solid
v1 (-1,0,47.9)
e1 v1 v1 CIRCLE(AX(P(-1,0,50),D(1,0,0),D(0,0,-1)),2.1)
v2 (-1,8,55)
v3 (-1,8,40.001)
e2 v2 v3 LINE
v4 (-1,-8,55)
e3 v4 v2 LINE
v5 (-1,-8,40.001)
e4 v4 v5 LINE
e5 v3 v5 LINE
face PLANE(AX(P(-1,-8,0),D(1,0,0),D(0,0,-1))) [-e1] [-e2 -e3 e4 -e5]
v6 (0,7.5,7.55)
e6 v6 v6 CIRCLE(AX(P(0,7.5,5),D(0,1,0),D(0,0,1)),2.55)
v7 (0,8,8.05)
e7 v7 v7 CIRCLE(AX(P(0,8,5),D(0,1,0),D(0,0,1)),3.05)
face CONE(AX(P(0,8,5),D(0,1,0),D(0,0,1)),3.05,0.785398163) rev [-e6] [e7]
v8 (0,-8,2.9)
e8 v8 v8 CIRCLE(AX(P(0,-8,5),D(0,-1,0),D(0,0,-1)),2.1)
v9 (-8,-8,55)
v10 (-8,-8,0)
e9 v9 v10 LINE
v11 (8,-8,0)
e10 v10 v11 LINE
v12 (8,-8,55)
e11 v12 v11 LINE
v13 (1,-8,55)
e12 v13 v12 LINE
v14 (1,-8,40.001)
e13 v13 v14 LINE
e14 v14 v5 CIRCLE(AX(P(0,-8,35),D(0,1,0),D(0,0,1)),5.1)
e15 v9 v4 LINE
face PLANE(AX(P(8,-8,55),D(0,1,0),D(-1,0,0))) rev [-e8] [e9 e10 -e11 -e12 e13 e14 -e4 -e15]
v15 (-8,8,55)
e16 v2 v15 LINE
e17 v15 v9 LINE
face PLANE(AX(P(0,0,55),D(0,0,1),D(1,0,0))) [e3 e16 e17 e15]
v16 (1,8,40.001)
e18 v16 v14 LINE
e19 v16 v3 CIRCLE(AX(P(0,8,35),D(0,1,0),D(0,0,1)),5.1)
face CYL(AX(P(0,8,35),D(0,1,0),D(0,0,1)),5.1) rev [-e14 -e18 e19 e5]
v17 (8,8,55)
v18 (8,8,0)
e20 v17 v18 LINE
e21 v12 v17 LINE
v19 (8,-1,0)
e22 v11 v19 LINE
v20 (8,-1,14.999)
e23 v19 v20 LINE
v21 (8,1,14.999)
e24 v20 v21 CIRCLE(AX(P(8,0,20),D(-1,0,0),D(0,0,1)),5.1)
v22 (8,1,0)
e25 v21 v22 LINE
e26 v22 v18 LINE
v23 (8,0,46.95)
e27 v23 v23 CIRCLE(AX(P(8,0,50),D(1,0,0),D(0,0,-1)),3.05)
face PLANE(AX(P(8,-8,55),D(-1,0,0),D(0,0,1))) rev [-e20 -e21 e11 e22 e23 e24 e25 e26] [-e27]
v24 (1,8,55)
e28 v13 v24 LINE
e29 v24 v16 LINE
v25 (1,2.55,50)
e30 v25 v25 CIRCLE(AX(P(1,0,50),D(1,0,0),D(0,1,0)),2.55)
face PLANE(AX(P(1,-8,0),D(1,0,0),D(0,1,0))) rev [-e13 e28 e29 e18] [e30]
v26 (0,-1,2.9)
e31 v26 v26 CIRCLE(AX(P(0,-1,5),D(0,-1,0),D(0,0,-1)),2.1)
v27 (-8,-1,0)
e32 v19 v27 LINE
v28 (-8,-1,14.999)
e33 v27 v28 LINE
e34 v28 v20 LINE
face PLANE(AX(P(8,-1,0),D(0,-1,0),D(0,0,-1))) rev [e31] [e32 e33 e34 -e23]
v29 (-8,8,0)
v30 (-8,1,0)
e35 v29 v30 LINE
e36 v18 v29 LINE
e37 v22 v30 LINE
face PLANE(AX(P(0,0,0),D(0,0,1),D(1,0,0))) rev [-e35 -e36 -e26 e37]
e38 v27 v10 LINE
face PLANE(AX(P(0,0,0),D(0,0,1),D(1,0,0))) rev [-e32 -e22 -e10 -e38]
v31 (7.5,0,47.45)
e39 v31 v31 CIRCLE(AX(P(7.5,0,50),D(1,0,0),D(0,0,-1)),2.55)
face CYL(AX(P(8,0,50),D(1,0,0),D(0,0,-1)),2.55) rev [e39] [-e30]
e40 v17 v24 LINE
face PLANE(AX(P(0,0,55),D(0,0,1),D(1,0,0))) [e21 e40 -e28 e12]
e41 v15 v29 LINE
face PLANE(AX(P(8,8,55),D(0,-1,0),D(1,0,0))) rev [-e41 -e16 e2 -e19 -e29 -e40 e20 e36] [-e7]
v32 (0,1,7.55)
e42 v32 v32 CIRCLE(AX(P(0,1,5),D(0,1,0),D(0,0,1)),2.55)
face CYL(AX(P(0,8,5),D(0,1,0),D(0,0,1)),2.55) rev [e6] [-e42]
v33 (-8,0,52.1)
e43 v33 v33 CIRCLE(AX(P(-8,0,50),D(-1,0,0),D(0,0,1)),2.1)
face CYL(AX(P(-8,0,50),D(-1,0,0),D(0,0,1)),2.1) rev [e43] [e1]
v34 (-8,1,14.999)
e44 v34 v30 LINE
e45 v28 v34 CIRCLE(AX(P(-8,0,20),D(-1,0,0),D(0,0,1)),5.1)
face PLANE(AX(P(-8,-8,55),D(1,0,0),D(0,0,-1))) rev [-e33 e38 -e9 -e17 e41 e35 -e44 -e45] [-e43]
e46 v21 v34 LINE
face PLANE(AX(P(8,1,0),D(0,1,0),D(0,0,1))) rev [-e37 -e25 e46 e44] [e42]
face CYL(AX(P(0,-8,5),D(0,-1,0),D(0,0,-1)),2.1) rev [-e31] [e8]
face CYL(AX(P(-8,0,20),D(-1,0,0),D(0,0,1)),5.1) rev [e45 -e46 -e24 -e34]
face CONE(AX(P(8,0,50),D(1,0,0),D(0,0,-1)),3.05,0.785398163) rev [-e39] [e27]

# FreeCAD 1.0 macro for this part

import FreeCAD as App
import Part
import Sketcher

V = App.Vector
Q = App.Units.Quantity

doc = App.newDocument("Part")
body = doc.addObject("PartDesign::Body", "Body")

# Sketch on XY plane
sketch1 = doc.addObject("Sketcher::SketchObject", "Sketch")
body.addObject(sketch1)
sketch1.AttachmentSupport = (doc.XY_Plane, [""])
sketch1.MapMode = "FlatFace"
sketch1.addGeometry([
    Part.LineSegment(V(-8, 8, 0), V(-8, -8, 0)),
    Part.LineSegment(V(-8, -8, 0), V(8, -8, 0)),
    Part.LineSegment(V(8, -8, 0), V(8, 8, 0)),
    Part.LineSegment(V(8, 8, 0), V(-8, 8, 0)),
], False)
sketch1.addConstraint([
    Sketcher.Constraint("Coincident", 0, 2, 1, 1),
    Sketcher.Constraint("Coincident", 1, 2, 2, 1),
    Sketcher.Constraint("Coincident", 2, 2, 3, 1),
    Sketcher.Constraint("Coincident", 3, 2, 0, 1),
    Sketcher.Constraint("Vertical", 0),
    Sketcher.Constraint("Horizontal", 1),
    Sketcher.Constraint("Vertical", 2),
    Sketcher.Constraint("Horizontal", 3),
    Sketcher.Constraint("Symmetric", 0, 2, 2, 2, -1, 1),
    Sketcher.Constraint("Equal", 3, 0),
    Sketcher.Constraint("DistanceX", 1, 1, 1, 2, Q("16 mm")),
])
pad1 = doc.addObject("PartDesign::Pad", "Pad")
body.addObject(pad1)
pad1.Profile = sketch1
pad1.Length = 55

# Sketch on XZ plane
sketch2 = doc.addObject("Sketcher::SketchObject", "Sketch001")
body.addObject(sketch2)
sketch2.AttachmentSupport = (doc.XZ_Plane, [""])
sketch2.MapMode = "FlatFace"
sketch2.AttachmentOffset = App.Placement(V(0, 0, -8), App.Rotation())
sketch2.addGeometry([
    Part.LineSegment(V(-1, 39, 0), V(-1, 55, 0)),
    Part.LineSegment(V(-1, 55, 0), V(1, 55, 0)),
    Part.LineSegment(V(1, 55, 0), V(1, 39, 0)),
    Part.LineSegment(V(1, 39, 0), V(-1, 39, 0)),
], False)
sketch2.addConstraint([
    Sketcher.Constraint("Coincident", 0, 2, 1, 1),
    Sketcher.Constraint("Coincident", 1, 2, 2, 1),
    Sketcher.Constraint("Coincident", 2, 2, 3, 1),
    Sketcher.Constraint("Coincident", 3, 2, 0, 1),
    Sketcher.Constraint("Vertical", 0),
    Sketcher.Constraint("Horizontal", 1),
    Sketcher.Constraint("Vertical", 2),
    Sketcher.Constraint("Horizontal", 3),
    Sketcher.Constraint("DistanceX", 1, 1, 1, 2, Q("2 mm")),
    Sketcher.Constraint("DistanceY", 0, 1, 0, 2, Q("16 mm")),
    Sketcher.Constraint("DistanceX", 0, 2, -1, 1, Q("1 mm")),
    Sketcher.Constraint("DistanceY", -1, 1, 0, 2, Q("55 mm")),
])
pocket1 = doc.addObject("PartDesign::Pocket", "Pocket")
body.addObject(pocket1)
pocket1.Profile = sketch2
pocket1.Type = "ThroughAll"
pocket1.Reversed = True

# Sketch on YZ plane
sketch3 = doc.addObject("Sketcher::SketchObject", "Sketch002")
body.addObject(sketch3)
sketch3.AttachmentSupport = (doc.YZ_Plane, [""])
sketch3.MapMode = "FlatFace"
sketch3.AttachmentOffset = App.Placement(V(0, 0, 8), App.Rotation())
sketch3.addGeometry(Part.Circle(V(0, 50, 0), V(0, 0, 1), 2.5), False)
sketch3.addConstraint([
    Sketcher.Constraint("PointOnObject", 0, 3, -2),
    Sketcher.Constraint("Diameter", 0, Q("5.1 mm")),
    Sketcher.Constraint("DistanceY", -1, 1, 0, 3, Q("50 mm")),
])
doc.recompute()
hole = doc.addObject("PartDesign::Hole", "Hole")
body.addObject(hole)
hole.Profile = sketch3
hole.ThreadType = "None"
hole.Diameter = 5.1
hole.DepthType = "Dimension"
hole.Depth = 7.5
hole.DrillPoint = "Angled"
hole.DrillPointAngle = 135
hole.HoleCutType = "Countersink"
hole.HoleCutDiameter = 6.1
hole.HoleCutCountersinkAngle = 90

# Sketch on YZ plane
sketch4 = doc.addObject("Sketcher::SketchObject", "Sketch003")
body.addObject(sketch4)
sketch4.AttachmentSupport = (doc.YZ_Plane, [""])
sketch4.MapMode = "FlatFace"
sketch4.AttachmentOffset = App.Placement(V(0, 0, -8), App.Rotation())
sketch4.addGeometry(Part.Circle(V(0, 50, 0), V(0, 0, 1), 2.1), False)
sketch4.addConstraint([
    Sketcher.Constraint("PointOnObject", 0, 3, -2),
    Sketcher.Constraint("Diameter", 0, Q("4.2 mm")),
    Sketcher.Constraint("DistanceY", -1, 1, 0, 3, Q("50 mm")),
])
doc.recompute()
hole2 = doc.addObject("PartDesign::Hole", "Hole001")
body.addObject(hole2)
hole2.Profile = sketch4
hole2.ThreadType = "None"
hole2.Diameter = 4.2
hole2.DepthType = "Dimension"
hole2.Depth = 7.638193
hole2.DrillPoint = "Angled"
hole2.DrillPointAngle = 118
hole2.Reversed = True

# Sketch on XZ plane
sketch5 = doc.addObject("Sketcher::SketchObject", "Sketch004")
body.addObject(sketch5)
sketch5.AttachmentSupport = (doc.XZ_Plane, [""])
sketch5.MapMode = "FlatFace"
sketch5.AttachmentOffset = App.Placement(V(0, 0, -8), App.Rotation())
sketch5.addGeometry(Part.Circle(V(0, 35, 0), V(0, 0, 1), 5), False)
sketch5.addConstraint([
    Sketcher.Constraint("PointOnObject", 0, 3, -2),
    Sketcher.Constraint("Diameter", 0, Q("10.2 mm")),
    Sketcher.Constraint("DistanceY", -1, 1, 0, 3, Q("35 mm")),
])
doc.recompute()
hole3 = doc.addObject("PartDesign::Hole", "Hole002")
body.addObject(hole3)
hole3.Profile = sketch5
hole3.ThreadType = "None"
hole3.Diameter = 10.2
hole3.DepthType = "ThroughAll"
hole3.Reversed = True

# Sketch on YZ plane
sketch6 = doc.addObject("Sketcher::SketchObject", "Sketch005")
body.addObject(sketch6)
sketch6.AttachmentSupport = (doc.YZ_Plane, [""])
sketch6.MapMode = "FlatFace"
sketch6.AttachmentOffset = App.Placement(V(0, 0, -8), App.Rotation())
sketch6.addGeometry([
    Part.LineSegment(V(1, 0, 0), V(-1, 0, 0)),
    Part.LineSegment(V(-1, 0, 0), V(-1, 20, 0)),
    Part.LineSegment(V(-1, 20, 0), V(1, 20, 0)),
    Part.LineSegment(V(1, 20, 0), V(1, 0, 0)),
], False)
sketch6.addConstraint([
    Sketcher.Constraint("Coincident", 0, 2, 1, 1),
    Sketcher.Constraint("Coincident", 1, 2, 2, 1),
    Sketcher.Constraint("Coincident", 2, 2, 3, 1),
    Sketcher.Constraint("Coincident", 3, 2, 0, 1),
    Sketcher.Constraint("Horizontal", 0),
    Sketcher.Constraint("Vertical", 1),
    Sketcher.Constraint("Horizontal", 2),
    Sketcher.Constraint("Vertical", 3),
    Sketcher.Constraint("Symmetric", 0, 2, 3, 2, -1, 1),
    Sketcher.Constraint("DistanceX", 0, 2, 0, 1, Q("2 mm")),
    Sketcher.Constraint("DistanceY", 1, 1, 1, 2, Q("20 mm")),
])
pocket2 = doc.addObject("PartDesign::Pocket", "Pocket001")
body.addObject(pocket2)
pocket2.Profile = sketch6
pocket2.Type = "ThroughAll"
pocket2.Reversed = True

# Sketch on YZ plane
sketch7 = doc.addObject("Sketcher::SketchObject", "Sketch006")
body.addObject(sketch7)
sketch7.AttachmentSupport = (doc.YZ_Plane, [""])
sketch7.MapMode = "FlatFace"
sketch7.AttachmentOffset = App.Placement(V(0, 0, -8), App.Rotation())
sketch7.addGeometry(Part.Circle(V(0, 20, 0), V(0, 0, 1), 5), False)
sketch7.addConstraint([
    Sketcher.Constraint("PointOnObject", 0, 3, -2),
    Sketcher.Constraint("Diameter", 0, Q("10.2 mm")),
    Sketcher.Constraint("DistanceY", -1, 1, 0, 3, Q("20 mm")),
])
doc.recompute()
hole4 = doc.addObject("PartDesign::Hole", "Hole003")
body.addObject(hole4)
hole4.Profile = sketch7
hole4.ThreadType = "None"
hole4.Diameter = 10.2
hole4.DepthType = "ThroughAll"
hole4.Reversed = True

# Sketch on XZ plane
sketch8 = doc.addObject("Sketcher::SketchObject", "Sketch007")
body.addObject(sketch8)
sketch8.AttachmentSupport = (doc.XZ_Plane, [""])
sketch8.MapMode = "FlatFace"
sketch8.AttachmentOffset = App.Placement(V(0, 0, -8), App.Rotation())
sketch8.addGeometry(Part.Circle(V(0, 5, 0), V(0, 0, 1), 2.5), False)
sketch8.addConstraint([
    Sketcher.Constraint("PointOnObject", 0, 3, -2),
    Sketcher.Constraint("Diameter", 0, Q("5.1 mm")),
    Sketcher.Constraint("DistanceY", -1, 1, 0, 3, Q("5 mm")),
])
doc.recompute()
hole5 = doc.addObject("PartDesign::Hole", "Hole004")
body.addObject(hole5)
hole5.Profile = sketch8
hole5.ThreadType = "None"
hole5.Diameter = 5.1
hole5.DepthType = "Dimension"
hole5.Depth = 7.5
hole5.DrillPoint = "Angled"
hole5.DrillPointAngle = 135
hole5.HoleCutType = "Countersink"
hole5.HoleCutDiameter = 6.1
hole5.HoleCutCountersinkAngle = 90
hole5.Reversed = True

# Sketch on XZ plane
sketch9 = doc.addObject("Sketcher::SketchObject", "Sketch008")
body.addObject(sketch9)
sketch9.AttachmentSupport = (doc.XZ_Plane, [""])
sketch9.MapMode = "FlatFace"
sketch9.AttachmentOffset = App.Placement(V(0, 0, 8), App.Rotation())
sketch9.addGeometry(Part.Circle(V(0, 5, 0), V(0, 0, 1), 2.1), False)
sketch9.addConstraint([
    Sketcher.Constraint("PointOnObject", 0, 3, -2),
    Sketcher.Constraint("Diameter", 0, Q("4.2 mm")),
    Sketcher.Constraint("DistanceY", -1, 1, 0, 3, Q("5 mm")),
])
doc.recompute()
hole6 = doc.addObject("PartDesign::Hole", "Hole005")
body.addObject(hole6)
hole6.Profile = sketch9
hole6.ThreadType = "None"
hole6.Diameter = 4.2
hole6.DepthType = "Dimension"
hole6.Depth = 7.638193
hole6.DrillPoint = "Angled"
hole6.DrillPointAngle = 118

doc.recompute()
